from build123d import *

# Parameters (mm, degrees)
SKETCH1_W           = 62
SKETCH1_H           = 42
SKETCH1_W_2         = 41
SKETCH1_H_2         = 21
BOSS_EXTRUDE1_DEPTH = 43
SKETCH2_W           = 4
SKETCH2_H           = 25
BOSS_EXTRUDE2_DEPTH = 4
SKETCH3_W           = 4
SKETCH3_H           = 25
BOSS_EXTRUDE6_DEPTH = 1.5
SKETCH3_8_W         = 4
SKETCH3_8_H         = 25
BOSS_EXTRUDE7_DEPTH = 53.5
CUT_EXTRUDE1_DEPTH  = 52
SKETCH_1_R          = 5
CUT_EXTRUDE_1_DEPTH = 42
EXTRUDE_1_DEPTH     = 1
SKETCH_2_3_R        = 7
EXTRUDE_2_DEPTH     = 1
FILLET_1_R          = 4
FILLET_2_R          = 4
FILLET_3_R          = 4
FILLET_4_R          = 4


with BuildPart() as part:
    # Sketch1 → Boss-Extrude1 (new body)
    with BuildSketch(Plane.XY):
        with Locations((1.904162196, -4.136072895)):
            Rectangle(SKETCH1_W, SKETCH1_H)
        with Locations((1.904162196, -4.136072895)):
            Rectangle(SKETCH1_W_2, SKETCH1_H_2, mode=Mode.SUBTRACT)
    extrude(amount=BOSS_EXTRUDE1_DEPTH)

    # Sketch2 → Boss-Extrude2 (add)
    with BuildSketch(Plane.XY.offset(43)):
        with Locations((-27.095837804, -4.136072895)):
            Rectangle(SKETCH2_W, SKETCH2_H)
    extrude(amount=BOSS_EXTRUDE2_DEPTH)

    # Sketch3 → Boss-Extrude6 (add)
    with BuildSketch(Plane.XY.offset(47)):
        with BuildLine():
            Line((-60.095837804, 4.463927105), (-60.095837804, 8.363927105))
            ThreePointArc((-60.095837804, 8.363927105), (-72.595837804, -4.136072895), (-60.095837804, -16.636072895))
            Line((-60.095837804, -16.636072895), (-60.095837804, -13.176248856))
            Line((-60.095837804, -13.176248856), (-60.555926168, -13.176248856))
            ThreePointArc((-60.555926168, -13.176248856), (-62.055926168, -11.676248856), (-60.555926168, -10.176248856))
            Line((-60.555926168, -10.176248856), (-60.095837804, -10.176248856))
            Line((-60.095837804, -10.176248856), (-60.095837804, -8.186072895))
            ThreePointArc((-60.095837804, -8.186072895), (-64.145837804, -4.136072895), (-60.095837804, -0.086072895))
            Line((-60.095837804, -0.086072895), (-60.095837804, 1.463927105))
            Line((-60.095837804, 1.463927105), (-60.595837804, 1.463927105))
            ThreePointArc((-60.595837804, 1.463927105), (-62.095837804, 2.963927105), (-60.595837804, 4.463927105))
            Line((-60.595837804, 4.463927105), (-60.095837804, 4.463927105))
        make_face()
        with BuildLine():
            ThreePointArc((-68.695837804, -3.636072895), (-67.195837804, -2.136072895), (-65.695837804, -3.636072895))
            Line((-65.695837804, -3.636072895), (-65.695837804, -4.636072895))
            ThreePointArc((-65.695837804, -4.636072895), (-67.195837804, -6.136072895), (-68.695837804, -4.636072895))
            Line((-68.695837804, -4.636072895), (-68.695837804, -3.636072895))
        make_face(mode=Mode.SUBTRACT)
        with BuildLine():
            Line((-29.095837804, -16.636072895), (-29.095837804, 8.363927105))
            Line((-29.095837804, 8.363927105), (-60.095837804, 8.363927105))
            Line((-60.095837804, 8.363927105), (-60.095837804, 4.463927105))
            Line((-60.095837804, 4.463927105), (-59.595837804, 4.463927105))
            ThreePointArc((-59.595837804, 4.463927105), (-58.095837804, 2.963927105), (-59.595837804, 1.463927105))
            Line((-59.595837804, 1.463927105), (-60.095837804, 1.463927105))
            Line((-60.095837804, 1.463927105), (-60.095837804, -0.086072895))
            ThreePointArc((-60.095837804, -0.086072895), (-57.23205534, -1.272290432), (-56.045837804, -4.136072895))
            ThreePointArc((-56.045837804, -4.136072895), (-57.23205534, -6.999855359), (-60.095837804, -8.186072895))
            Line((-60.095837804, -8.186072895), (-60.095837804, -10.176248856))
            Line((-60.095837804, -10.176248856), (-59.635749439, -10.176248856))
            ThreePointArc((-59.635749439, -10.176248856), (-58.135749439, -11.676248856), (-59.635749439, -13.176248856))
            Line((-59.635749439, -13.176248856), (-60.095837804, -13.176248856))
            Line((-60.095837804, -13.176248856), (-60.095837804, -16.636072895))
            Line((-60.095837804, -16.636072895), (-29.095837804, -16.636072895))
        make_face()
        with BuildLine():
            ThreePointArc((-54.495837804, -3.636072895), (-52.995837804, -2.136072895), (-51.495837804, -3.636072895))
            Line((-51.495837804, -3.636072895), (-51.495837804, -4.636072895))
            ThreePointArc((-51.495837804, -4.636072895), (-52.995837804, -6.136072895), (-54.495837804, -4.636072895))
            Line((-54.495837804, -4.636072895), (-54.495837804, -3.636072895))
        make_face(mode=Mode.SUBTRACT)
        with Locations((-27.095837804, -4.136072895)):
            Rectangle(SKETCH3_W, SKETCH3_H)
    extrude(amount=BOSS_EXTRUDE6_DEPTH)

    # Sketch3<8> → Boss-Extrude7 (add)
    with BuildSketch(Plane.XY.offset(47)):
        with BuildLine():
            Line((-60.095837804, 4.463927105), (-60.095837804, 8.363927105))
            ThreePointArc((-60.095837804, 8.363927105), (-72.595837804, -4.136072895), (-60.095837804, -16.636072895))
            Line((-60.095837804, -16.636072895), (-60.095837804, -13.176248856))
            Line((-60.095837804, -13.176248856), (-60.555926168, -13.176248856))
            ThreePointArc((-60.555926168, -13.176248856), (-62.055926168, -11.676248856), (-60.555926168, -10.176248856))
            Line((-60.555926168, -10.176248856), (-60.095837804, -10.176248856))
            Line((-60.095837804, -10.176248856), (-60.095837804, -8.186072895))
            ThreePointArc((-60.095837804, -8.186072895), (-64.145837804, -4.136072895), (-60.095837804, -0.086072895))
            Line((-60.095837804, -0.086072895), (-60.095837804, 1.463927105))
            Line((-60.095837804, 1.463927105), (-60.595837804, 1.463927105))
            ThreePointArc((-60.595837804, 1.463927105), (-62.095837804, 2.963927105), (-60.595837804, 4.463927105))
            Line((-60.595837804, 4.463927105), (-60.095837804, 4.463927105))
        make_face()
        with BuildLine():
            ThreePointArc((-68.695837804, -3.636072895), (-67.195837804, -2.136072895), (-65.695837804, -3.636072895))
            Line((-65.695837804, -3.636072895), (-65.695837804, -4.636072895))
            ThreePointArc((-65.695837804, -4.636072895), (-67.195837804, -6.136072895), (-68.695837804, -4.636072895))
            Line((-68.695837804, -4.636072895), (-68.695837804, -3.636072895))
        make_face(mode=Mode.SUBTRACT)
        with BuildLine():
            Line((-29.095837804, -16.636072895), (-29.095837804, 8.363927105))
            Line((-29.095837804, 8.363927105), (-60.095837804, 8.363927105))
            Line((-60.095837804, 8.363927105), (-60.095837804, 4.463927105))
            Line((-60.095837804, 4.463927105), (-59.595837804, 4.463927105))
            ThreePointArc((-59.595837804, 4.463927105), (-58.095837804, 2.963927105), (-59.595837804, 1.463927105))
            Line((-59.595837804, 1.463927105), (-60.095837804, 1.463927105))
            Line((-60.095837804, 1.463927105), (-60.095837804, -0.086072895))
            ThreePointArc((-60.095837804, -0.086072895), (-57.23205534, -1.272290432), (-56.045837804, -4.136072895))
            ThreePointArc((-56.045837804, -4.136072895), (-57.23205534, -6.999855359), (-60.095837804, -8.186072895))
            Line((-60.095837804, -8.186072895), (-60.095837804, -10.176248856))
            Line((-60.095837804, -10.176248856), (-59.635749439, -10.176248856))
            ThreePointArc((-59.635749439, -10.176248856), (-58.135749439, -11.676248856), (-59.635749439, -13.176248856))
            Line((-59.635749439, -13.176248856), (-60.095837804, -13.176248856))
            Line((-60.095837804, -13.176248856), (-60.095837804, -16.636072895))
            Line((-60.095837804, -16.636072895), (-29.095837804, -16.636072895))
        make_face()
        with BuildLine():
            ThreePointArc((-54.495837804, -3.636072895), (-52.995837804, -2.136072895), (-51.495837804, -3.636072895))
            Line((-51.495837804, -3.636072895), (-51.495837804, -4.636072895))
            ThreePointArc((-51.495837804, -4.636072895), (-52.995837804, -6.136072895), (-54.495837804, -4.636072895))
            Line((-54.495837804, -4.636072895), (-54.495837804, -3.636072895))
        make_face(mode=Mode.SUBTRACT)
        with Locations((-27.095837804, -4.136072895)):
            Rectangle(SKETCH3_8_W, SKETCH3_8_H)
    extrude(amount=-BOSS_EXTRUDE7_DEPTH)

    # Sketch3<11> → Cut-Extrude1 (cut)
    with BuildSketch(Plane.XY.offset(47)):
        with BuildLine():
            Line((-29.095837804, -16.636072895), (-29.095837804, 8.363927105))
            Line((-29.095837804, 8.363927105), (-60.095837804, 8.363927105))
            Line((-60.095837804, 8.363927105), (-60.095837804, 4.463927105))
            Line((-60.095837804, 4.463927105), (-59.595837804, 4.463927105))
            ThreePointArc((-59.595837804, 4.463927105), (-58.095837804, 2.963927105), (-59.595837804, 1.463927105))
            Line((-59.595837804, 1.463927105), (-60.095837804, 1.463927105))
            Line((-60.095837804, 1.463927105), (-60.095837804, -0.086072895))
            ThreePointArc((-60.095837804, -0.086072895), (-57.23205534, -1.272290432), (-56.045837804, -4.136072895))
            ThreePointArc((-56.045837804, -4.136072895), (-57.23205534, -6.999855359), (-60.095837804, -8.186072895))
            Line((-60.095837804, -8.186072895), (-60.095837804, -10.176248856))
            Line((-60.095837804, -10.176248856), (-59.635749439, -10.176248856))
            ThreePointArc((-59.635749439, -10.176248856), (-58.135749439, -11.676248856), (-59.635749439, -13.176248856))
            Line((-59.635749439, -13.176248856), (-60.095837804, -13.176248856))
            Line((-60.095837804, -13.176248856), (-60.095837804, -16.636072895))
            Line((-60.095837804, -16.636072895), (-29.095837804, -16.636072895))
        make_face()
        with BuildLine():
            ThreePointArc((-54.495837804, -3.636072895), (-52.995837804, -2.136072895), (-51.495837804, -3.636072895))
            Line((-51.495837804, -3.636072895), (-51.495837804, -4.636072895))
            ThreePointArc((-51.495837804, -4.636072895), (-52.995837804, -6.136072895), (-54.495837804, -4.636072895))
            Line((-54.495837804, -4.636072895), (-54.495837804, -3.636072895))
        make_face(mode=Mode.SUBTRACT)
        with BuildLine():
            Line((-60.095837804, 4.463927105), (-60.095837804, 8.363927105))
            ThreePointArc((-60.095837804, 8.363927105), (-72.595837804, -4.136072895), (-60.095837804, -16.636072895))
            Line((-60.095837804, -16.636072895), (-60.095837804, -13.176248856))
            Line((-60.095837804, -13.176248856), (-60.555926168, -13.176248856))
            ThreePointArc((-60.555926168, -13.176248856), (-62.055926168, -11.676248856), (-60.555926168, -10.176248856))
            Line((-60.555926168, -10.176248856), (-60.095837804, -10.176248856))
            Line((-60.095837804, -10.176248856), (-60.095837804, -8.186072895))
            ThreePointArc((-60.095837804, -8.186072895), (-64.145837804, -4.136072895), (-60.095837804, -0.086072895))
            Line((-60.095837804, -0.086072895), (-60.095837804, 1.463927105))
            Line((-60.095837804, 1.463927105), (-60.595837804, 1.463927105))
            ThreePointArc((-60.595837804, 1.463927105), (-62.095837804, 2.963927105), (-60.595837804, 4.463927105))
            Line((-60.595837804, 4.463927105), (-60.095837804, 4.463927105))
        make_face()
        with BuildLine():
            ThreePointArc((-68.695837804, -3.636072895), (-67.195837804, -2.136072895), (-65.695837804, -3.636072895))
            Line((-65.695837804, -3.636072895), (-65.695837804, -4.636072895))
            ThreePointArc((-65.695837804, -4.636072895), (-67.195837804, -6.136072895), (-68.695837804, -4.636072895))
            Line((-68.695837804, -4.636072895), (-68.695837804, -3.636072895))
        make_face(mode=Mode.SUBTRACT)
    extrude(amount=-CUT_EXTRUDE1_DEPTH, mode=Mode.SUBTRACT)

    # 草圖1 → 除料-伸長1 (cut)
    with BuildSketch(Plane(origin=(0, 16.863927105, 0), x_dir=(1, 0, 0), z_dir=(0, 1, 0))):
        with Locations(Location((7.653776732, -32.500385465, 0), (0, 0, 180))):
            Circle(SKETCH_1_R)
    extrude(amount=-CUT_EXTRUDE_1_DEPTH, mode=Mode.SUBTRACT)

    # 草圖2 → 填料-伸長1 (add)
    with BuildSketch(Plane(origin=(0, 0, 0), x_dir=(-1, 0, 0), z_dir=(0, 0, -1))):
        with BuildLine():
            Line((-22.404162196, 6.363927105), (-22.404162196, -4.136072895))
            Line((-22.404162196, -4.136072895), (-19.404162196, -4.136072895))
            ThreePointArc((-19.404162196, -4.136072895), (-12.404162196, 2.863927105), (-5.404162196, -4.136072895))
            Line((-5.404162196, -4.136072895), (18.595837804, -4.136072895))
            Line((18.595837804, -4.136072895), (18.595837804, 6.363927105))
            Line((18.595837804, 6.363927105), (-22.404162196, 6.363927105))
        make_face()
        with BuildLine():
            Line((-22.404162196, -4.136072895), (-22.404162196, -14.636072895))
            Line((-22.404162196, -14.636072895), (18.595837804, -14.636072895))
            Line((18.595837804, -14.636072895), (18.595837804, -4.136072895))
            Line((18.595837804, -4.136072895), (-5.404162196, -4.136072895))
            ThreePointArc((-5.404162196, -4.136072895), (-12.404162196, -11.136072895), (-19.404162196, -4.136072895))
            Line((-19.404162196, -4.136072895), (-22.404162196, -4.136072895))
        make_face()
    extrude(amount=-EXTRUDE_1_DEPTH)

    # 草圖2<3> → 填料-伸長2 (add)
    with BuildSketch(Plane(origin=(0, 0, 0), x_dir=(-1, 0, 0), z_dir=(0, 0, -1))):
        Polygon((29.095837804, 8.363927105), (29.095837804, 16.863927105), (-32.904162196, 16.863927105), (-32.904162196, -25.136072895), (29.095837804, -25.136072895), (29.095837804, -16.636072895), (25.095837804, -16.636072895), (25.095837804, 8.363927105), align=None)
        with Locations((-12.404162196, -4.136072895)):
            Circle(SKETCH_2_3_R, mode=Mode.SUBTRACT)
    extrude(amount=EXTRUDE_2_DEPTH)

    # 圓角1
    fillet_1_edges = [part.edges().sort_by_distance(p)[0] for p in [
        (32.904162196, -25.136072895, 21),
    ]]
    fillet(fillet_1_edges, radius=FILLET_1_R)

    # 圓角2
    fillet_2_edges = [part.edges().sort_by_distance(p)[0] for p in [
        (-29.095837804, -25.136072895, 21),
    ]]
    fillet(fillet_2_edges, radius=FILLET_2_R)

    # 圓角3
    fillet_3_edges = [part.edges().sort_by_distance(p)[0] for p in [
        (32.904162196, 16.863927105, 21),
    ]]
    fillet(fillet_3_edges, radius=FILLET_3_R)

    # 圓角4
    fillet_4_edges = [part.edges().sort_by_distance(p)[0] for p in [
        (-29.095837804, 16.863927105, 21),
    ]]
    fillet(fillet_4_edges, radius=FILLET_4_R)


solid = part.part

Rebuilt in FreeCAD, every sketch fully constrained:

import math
import FreeCAD as App
import Part
import Sketcher

V = App.Vector
Q = App.Units.Quantity


def edges_at(feature, points):
    """Names of the edges that pass closest to the given points."""
    edges = feature.Shape.Edges
    near = lambda p: min(range(len(edges)), key=lambda i: edges[i].distToShape(Part.Vertex(*p))[0])
    return sorted({f"Edge{near(p) + 1}" for p in points})

doc = App.newDocument("Part")
body = doc.addObject("PartDesign::Body", "Body")

sketch1 = doc.addObject("Sketcher::SketchObject", "Sketch")
body.addObject(sketch1)
sketch1.AttachmentSupport = (doc.XY_Plane, [""])
sketch1.MapMode = "FlatFace"
sketch1.addGeometry([
    Part.LineSegment(V(-29, 17, 0), V(-29, -25, 0)),
    Part.LineSegment(V(-29, -25, 0), V(33, -25, 0)),
    Part.LineSegment(V(33, -25, 0), V(33, 17, 0)),
    Part.LineSegment(V(33, 17, 0), V(-29, 17, 0)),
    Part.LineSegment(V(22, -15, 0), V(-19, -15, 0)),
    Part.LineSegment(V(-19, -15, 0), V(-19, 6, 0)),
    Part.LineSegment(V(-19, 6, 0), V(22, 6, 0)),
    Part.LineSegment(V(22, 6, 0), V(22, -15, 0)),
], False)
sketch1.addConstraint([
    Sketcher.Constraint("Coincident", 0, 2, 1, 1),
    Sketcher.Constraint("Coincident", 1, 2, 2, 1),
    Sketcher.Constraint("Coincident", 2, 2, 3, 1),
    Sketcher.Constraint("Coincident", 3, 2, 0, 1),
    Sketcher.Constraint("Coincident", 4, 2, 5, 1),
    Sketcher.Constraint("Coincident", 5, 2, 6, 1),
    Sketcher.Constraint("Coincident", 6, 2, 7, 1),
    Sketcher.Constraint("Coincident", 7, 2, 4, 1),
    Sketcher.Constraint("Vertical", 0),
    Sketcher.Constraint("Horizontal", 1),
    Sketcher.Constraint("Vertical", 2),
    Sketcher.Constraint("Horizontal", 3),
    Sketcher.Constraint("Horizontal", 4),
    Sketcher.Constraint("Vertical", 5),
    Sketcher.Constraint("Horizontal", 6),
    Sketcher.Constraint("Vertical", 7),
    Sketcher.Constraint("DistanceX", 1, 1, 1, 2, Q("62 mm")),
    Sketcher.Constraint("DistanceX", 4, 2, 4, 1, Q("41 mm")),
    Sketcher.Constraint("DistanceY", 0, 2, 0, 1, Q("42 mm")),
    Sketcher.Constraint("DistanceY", 5, 1, 5, 2, Q("21 mm")),
    Sketcher.Constraint("DistanceX", 0, 2, 4, 2, Q("10.5 mm")),
    Sketcher.Constraint("DistanceY", 0, 2, 4, 2, Q("10.5 mm")),
    Sketcher.Constraint("DistanceX", 0, 2, -1, 1, Q("29.095838 mm")),
    Sketcher.Constraint("DistanceY", 0, 2, -1, 1, Q("25.136073 mm")),
])
pad1 = doc.addObject("PartDesign::Pad", "Pad")
body.addObject(pad1)
pad1.Profile = sketch1
pad1.Length = 43

sketch2 = doc.addObject("Sketcher::SketchObject", "Sketch001")
body.addObject(sketch2)
sketch2.AttachmentSupport = (doc.XY_Plane, [""])
sketch2.MapMode = "FlatFace"
sketch2.AttachmentOffset = App.Placement(V(0, 0, 43), App.Rotation())
sketch2.addGeometry([
    Part.LineSegment(V(-29.1, 8.4, 0), V(-29.1, -16.6, 0)),
    Part.LineSegment(V(-29.1, -16.6, 0), V(-25.1, -16.6, 0)),
    Part.LineSegment(V(-25.1, -16.6, 0), V(-25.1, 8.4, 0)),
    Part.LineSegment(V(-25.1, 8.4, 0), V(-29.1, 8.4, 0)),
], False)
sketch2.addConstraint([
    Sketcher.Constraint("Coincident", 0, 2, 1, 1),
    Sketcher.Constraint("Coincident", 1, 2, 2, 1),
    Sketcher.Constraint("Coincident", 2, 2, 3, 1),
    Sketcher.Constraint("Coincident", 3, 2, 0, 1),
    Sketcher.Constraint("Vertical", 0),
    Sketcher.Constraint("Horizontal", 1),
    Sketcher.Constraint("Vertical", 2),
    Sketcher.Constraint("Horizontal", 3),
    Sketcher.Constraint("DistanceX", 1, 1, 1, 2, Q("4 mm")),
    Sketcher.Constraint("DistanceY", 0, 2, 0, 1, Q("25 mm")),
    Sketcher.Constraint("DistanceX", 0, 2, -1, 1, Q("29.095838 mm")),
    Sketcher.Constraint("DistanceY", 0, 2, -1, 1, Q("16.636073 mm")),
])
pad2 = doc.addObject("PartDesign::Pad", "Pad001")
body.addObject(pad2)
pad2.Profile = sketch2
pad2.Length = 4

sketch3 = doc.addObject("Sketcher::SketchObject", "Sketch002")
body.addObject(sketch3)
sketch3.AttachmentSupport = (doc.XY_Plane, [""])
sketch3.MapMode = "FlatFace"
sketch3.AttachmentOffset = App.Placement(V(0, 0, 47), App.Rotation())
sketch3.addGeometry([
    Part.ArcOfCircle(Part.Circle(V(-60.1, -4.1, 0), V(0, 0, 1), 12.5), math.radians(90), math.radians(270)),
    Part.LineSegment(V(-60.1, -16.6, 0), V(-25.1, -16.6, 0)),
    Part.LineSegment(V(-25.1, -16.6, 0), V(-25.1, 8.4, 0)),
    Part.LineSegment(V(-25.1, 8.4, 0), V(-60.1, 8.4, 0)),
    Part.ArcOfCircle(Part.Circle(V(-60.6, -11.7, 0), V(0, 0, 1), 1.5), math.radians(90), math.radians(270)),
    Part.LineSegment(V(-60.6, -10.2, 0), V(-59.6, -10.2, 0)),
    Part.ArcOfCircle(Part.Circle(V(-59.6, -11.7, 0), V(0, 0, 1), 1.5), math.radians(-90), math.radians(90)),
    Part.LineSegment(V(-59.6, -13.2, 0), V(-60.6, -13.2, 0)),
    Part.LineSegment(V(-68.7, -4.6, 0), V(-68.7, -3.6, 0)),
    Part.ArcOfCircle(Part.Circle(V(-67.2, -3.6, 0), V(0, 0, 1), 1.5), math.radians(0), math.radians(180)),
    Part.LineSegment(V(-65.7, -3.6, 0), V(-65.7, -4.6, 0)),
    Part.ArcOfCircle(Part.Circle(V(-67.2, -4.6, 0), V(0, 0, 1), 1.5), math.radians(180), math.radians(360)),
    Part.ArcOfCircle(Part.Circle(V(-60.1, -4.1, 0), V(0, 0, 1), 4), math.radians(90), math.radians(270)),
    Part.ArcOfCircle(Part.Circle(V(-60.1, -4.1, 0), V(0, 0, 1), 4.1), math.radians(0), math.radians(90)),
    Part.ArcOfCircle(Part.Circle(V(-60.1, -4.1, 0), V(0, 0, 1), 4), math.radians(-90), math.radians(0)),
    Part.LineSegment(V(-54.5, -4.6, 0), V(-54.5, -3.6, 0)),
    Part.ArcOfCircle(Part.Circle(V(-53, -3.6, 0), V(0, 0, 1), 1.5), math.radians(0), math.radians(180)),
    Part.LineSegment(V(-51.5, -3.6, 0), V(-51.5, -4.6, 0)),
    Part.ArcOfCircle(Part.Circle(V(-53, -4.6, 0), V(0, 0, 1), 1.5), math.radians(180), math.radians(360)),
    Part.LineSegment(V(-60.6, 4.5, 0), V(-59.6, 4.5, 0)),
    Part.ArcOfCircle(Part.Circle(V(-59.6, 3, 0), V(0, 0, 1), 1.5), math.radians(-90), math.radians(90)),
    Part.LineSegment(V(-59.6, 1.5, 0), V(-60.6, 1.5, 0)),
    Part.ArcOfCircle(Part.Circle(V(-60.6, 3, 0), V(0, 0, 1), 1.5), math.radians(90), math.radians(270)),
], False)
sketch3.addConstraint([
    Sketcher.Constraint("Tangent", 0, 2, 1, 1),
    Sketcher.Constraint("Coincident", 1, 2, 2, 1),
    Sketcher.Constraint("Coincident", 2, 2, 3, 1),
    Sketcher.Constraint("Tangent", 3, 2, 0, 1),
    Sketcher.Constraint("Tangent", 4, 1, 5, 1),
    Sketcher.Constraint("Tangent", 5, 2, 6, 2),
    Sketcher.Constraint("Tangent", 6, 1, 7, 1),
    Sketcher.Constraint("Tangent", 7, 2, 4, 2),
    Sketcher.Constraint("Tangent", 8, 2, 9, 2),
    Sketcher.Constraint("Tangent", 9, 1, 10, 1),
    Sketcher.Constraint("Tangent", 10, 2, 11, 2),
    Sketcher.Constraint("Tangent", 11, 1, 8, 1),
    Sketcher.Constraint("Tangent", 12, 1, 13, 2),
    Sketcher.Constraint("Tangent", 13, 1, 14, 2),
    Sketcher.Constraint("Tangent", 14, 1, 12, 2),
    Sketcher.Constraint("Tangent", 15, 2, 16, 2),
    Sketcher.Constraint("Tangent", 16, 1, 17, 1),
    Sketcher.Constraint("Tangent", 17, 2, 18, 2),
    Sketcher.Constraint("Tangent", 18, 1, 15, 1),
    Sketcher.Constraint("Tangent", 19, 2, 20, 2),
    Sketcher.Constraint("Tangent", 20, 1, 21, 1),
    Sketcher.Constraint("Tangent", 21, 2, 22, 2),
    Sketcher.Constraint("Tangent", 22, 1, 19, 1),
    Sketcher.Constraint("Horizontal", 1),
    Sketcher.Constraint("Vertical", 2),
    Sketcher.Constraint("Horizontal", 3),
    Sketcher.Constraint("Horizontal", 5),
    Sketcher.Constraint("Horizontal", 7),
    Sketcher.Constraint("Vertical", 8),
    Sketcher.Constraint("Vertical", 10),
    Sketcher.Constraint("Vertical", 15),
    Sketcher.Constraint("Vertical", 17),
    Sketcher.Constraint("Horizontal", 19),
    Sketcher.Constraint("Horizontal", 21),
    Sketcher.Constraint("Coincident", 12, 3, 0, 3),
    Sketcher.Constraint("Equal", 6, 9),
    Sketcher.Constraint("Equal", 11, 16),
    Sketcher.Constraint("Equal", 18, 20),
    Sketcher.Constraint("Horizontal", 9, 3, 16, 3),
    Sketcher.Constraint("Horizontal", 11, 3, 18, 3),
    Sketcher.Constraint("Horizontal", 14, 3, 13, 1),
    Sketcher.Constraint("Vertical", 3, 2, 12, 1),
    Sketcher.Constraint("Vertical", 12, 1, 14, 1),
    Sketcher.Constraint("Equal", 21, 8),
    Sketcher.Constraint("Radius", 0, Q("12.5 mm")),
    Sketcher.Constraint("Radius", 4, Q("1.5 mm")),
    Sketcher.Constraint("DistanceX", 1, 1, 1, 2, Q("35 mm")),
    Sketcher.Constraint("DistanceX", 19, 1, 19, 2, Q("1 mm")),
    Sketcher.Constraint("Radius", 12, Q("4.05 mm")),
    Sketcher.Constraint("DistanceY", 1, 2, 18, 3, Q("12 mm")),
    Sketcher.Constraint("DistanceX", 9, 3, 0, 3, Q("7.1 mm")),
    Sketcher.Constraint("DistanceX", 14, 3, 16, 3, Q("7.1 mm")),
    Sketcher.Constraint("DistanceX", 0, 3, 20, 3, Q("0.5 mm")),
    Sketcher.Constraint("DistanceY", 0, 3, 20, 3, Q("7.1 mm")),
    Sketcher.Constraint("DistanceX", 5, 1, 5, 2, Q("0.920177 mm")),
    Sketcher.Constraint("DistanceY", 4, 3, -1, 1, Q("11.676249 mm")),
    Sketcher.Constraint("DistanceX", 6, 3, -1, 1, Q("59.635749 mm")),
    Sketcher.Constraint("DistanceX", 4, 3, 0, 3, Q("0.460088 mm")),
    Sketcher.Constraint("DistanceY", 0, 3, -1, 1, Q("4.136073 mm")),
])
pad3 = doc.addObject("PartDesign::Pad", "Pad002")
body.addObject(pad3)
pad3.Profile = sketch3
pad3.Length = 1.5

sketch4 = doc.addObject("Sketcher::SketchObject", "Sketch003")
body.addObject(sketch4)
sketch4.AttachmentSupport = (doc.XY_Plane, [""])
sketch4.MapMode = "FlatFace"
sketch4.AttachmentOffset = App.Placement(V(0, 0, 47), App.Rotation())
sketch4.addGeometry([
    Part.ArcOfCircle(Part.Circle(V(-60.1, -4.1, 0), V(0, 0, 1), 12.5), math.radians(90), math.radians(270)),
    Part.LineSegment(V(-60.1, -16.6, 0), V(-25.1, -16.6, 0)),
    Part.LineSegment(V(-25.1, -16.6, 0), V(-25.1, 8.4, 0)),
    Part.LineSegment(V(-25.1, 8.4, 0), V(-60.1, 8.4, 0)),
    Part.ArcOfCircle(Part.Circle(V(-60.6, -11.7, 0), V(0, 0, 1), 1.5), math.radians(90), math.radians(270)),
    Part.LineSegment(V(-60.6, -10.2, 0), V(-59.6, -10.2, 0)),
    Part.ArcOfCircle(Part.Circle(V(-59.6, -11.7, 0), V(0, 0, 1), 1.5), math.radians(-90), math.radians(90)),
    Part.LineSegment(V(-59.6, -13.2, 0), V(-60.6, -13.2, 0)),
    Part.LineSegment(V(-68.7, -4.6, 0), V(-68.7, -3.6, 0)),
    Part.ArcOfCircle(Part.Circle(V(-67.2, -3.6, 0), V(0, 0, 1), 1.5), math.radians(0), math.radians(180)),
    Part.LineSegment(V(-65.7, -3.6, 0), V(-65.7, -4.6, 0)),
    Part.ArcOfCircle(Part.Circle(V(-67.2, -4.6, 0), V(0, 0, 1), 1.5), math.radians(180), math.radians(360)),
    Part.ArcOfCircle(Part.Circle(V(-60.1, -4.1, 0), V(0, 0, 1), 4), math.radians(90), math.radians(270)),
    Part.ArcOfCircle(Part.Circle(V(-60.1, -4.1, 0), V(0, 0, 1), 4.1), math.radians(0), math.radians(90)),
    Part.ArcOfCircle(Part.Circle(V(-60.1, -4.1, 0), V(0, 0, 1), 4), math.radians(-90), math.radians(0)),
    Part.LineSegment(V(-54.5, -4.6, 0), V(-54.5, -3.6, 0)),
    Part.ArcOfCircle(Part.Circle(V(-53, -3.6, 0), V(0, 0, 1), 1.5), math.radians(0), math.radians(180)),
    Part.LineSegment(V(-51.5, -3.6, 0), V(-51.5, -4.6, 0)),
    Part.ArcOfCircle(Part.Circle(V(-53, -4.6, 0), V(0, 0, 1), 1.5), math.radians(180), math.radians(360)),
    Part.LineSegment(V(-60.6, 4.5, 0), V(-59.6, 4.5, 0)),
    Part.ArcOfCircle(Part.Circle(V(-59.6, 3, 0), V(0, 0, 1), 1.5), math.radians(-90), math.radians(90)),
    Part.LineSegment(V(-59.6, 1.5, 0), V(-60.6, 1.5, 0)),
    Part.ArcOfCircle(Part.Circle(V(-60.6, 3, 0), V(0, 0, 1), 1.5), math.radians(90), math.radians(270)),
], False)
sketch4.addConstraint([
    Sketcher.Constraint("Tangent", 0, 2, 1, 1),
    Sketcher.Constraint("Coincident", 1, 2, 2, 1),
    Sketcher.Constraint("Coincident", 2, 2, 3, 1),
    Sketcher.Constraint("Tangent", 3, 2, 0, 1),
    Sketcher.Constraint("Tangent", 4, 1, 5, 1),
    Sketcher.Constraint("Tangent", 5, 2, 6, 2),
    Sketcher.Constraint("Tangent", 6, 1, 7, 1),
    Sketcher.Constraint("Tangent", 7, 2, 4, 2),
    Sketcher.Constraint("Tangent", 8, 2, 9, 2),
    Sketcher.Constraint("Tangent", 9, 1, 10, 1),
    Sketcher.Constraint("Tangent", 10, 2, 11, 2),
    Sketcher.Constraint("Tangent", 11, 1, 8, 1),
    Sketcher.Constraint("Tangent", 12, 1, 13, 2),
    Sketcher.Constraint("Tangent", 13, 1, 14, 2),
    Sketcher.Constraint("Tangent", 14, 1, 12, 2),
    Sketcher.Constraint("Tangent", 15, 2, 16, 2),
    Sketcher.Constraint("Tangent", 16, 1, 17, 1),
    Sketcher.Constraint("Tangent", 17, 2, 18, 2),
    Sketcher.Constraint("Tangent", 18, 1, 15, 1),
    Sketcher.Constraint("Tangent", 19, 2, 20, 2),
    Sketcher.Constraint("Tangent", 20, 1, 21, 1),
    Sketcher.Constraint("Tangent", 21, 2, 22, 2),
    Sketcher.Constraint("Tangent", 22, 1, 19, 1),
    Sketcher.Constraint("Horizontal", 1),
    Sketcher.Constraint("Vertical", 2),
    Sketcher.Constraint("Horizontal", 3),
    Sketcher.Constraint("Horizontal", 5),
    Sketcher.Constraint("Horizontal", 7),
    Sketcher.Constraint("Vertical", 8),
    Sketcher.Constraint("Vertical", 10),
    Sketcher.Constraint("Vertical", 15),
    Sketcher.Constraint("Vertical", 17),
    Sketcher.Constraint("Horizontal", 19),
    Sketcher.Constraint("Horizontal", 21),
    Sketcher.Constraint("Coincident", 12, 3, 0, 3),
    Sketcher.Constraint("Equal", 6, 9),
    Sketcher.Constraint("Equal", 11, 16),
    Sketcher.Constraint("Equal", 18, 20),
    Sketcher.Constraint("Horizontal", 9, 3, 16, 3),
    Sketcher.Constraint("Horizontal", 11, 3, 18, 3),
    Sketcher.Constraint("Horizontal", 14, 3, 13, 1),
    Sketcher.Constraint("Vertical", 3, 2, 12, 1),
    Sketcher.Constraint("Vertical", 12, 1, 14, 1),
    Sketcher.Constraint("Equal", 21, 8),
    Sketcher.Constraint("Radius", 0, Q("12.5 mm")),
    Sketcher.Constraint("Radius", 4, Q("1.5 mm")),
    Sketcher.Constraint("DistanceX", 1, 1, 1, 2, Q("35 mm")),
    Sketcher.Constraint("DistanceX", 19, 1, 19, 2, Q("1 mm")),
    Sketcher.Constraint("Radius", 12, Q("4.05 mm")),
    Sketcher.Constraint("DistanceY", 1, 2, 18, 3, Q("12 mm")),
    Sketcher.Constraint("DistanceX", 9, 3, 0, 3, Q("7.1 mm")),
    Sketcher.Constraint("DistanceX", 14, 3, 16, 3, Q("7.1 mm")),
    Sketcher.Constraint("DistanceX", 0, 3, 20, 3, Q("0.5 mm")),
    Sketcher.Constraint("DistanceY", 0, 3, 20, 3, Q("7.1 mm")),
    Sketcher.Constraint("DistanceX", 5, 1, 5, 2, Q("0.920177 mm")),
    Sketcher.Constraint("DistanceY", 4, 3, -1, 1, Q("11.676249 mm")),
    Sketcher.Constraint("DistanceX", 6, 3, -1, 1, Q("59.635749 mm")),
    Sketcher.Constraint("DistanceX", 4, 3, 0, 3, Q("0.460088 mm")),
    Sketcher.Constraint("DistanceY", 0, 3, -1, 1, Q("4.136073 mm")),
])
pad4 = doc.addObject("PartDesign::Pad", "Pad003")
body.addObject(pad4)
pad4.Profile = sketch4
pad4.Length = 53.5
pad4.Reversed = True

sketch5 = doc.addObject("Sketcher::SketchObject", "Sketch004")
body.addObject(sketch5)
sketch5.AttachmentSupport = (doc.XY_Plane, [""])
sketch5.MapMode = "FlatFace"
sketch5.AttachmentOffset = App.Placement(V(0, 0, 47), App.Rotation())
sketch5.addGeometry([
    Part.LineSegment(V(-29.1, -16.6, 0), V(-29.1, 8.4, 0)),
    Part.LineSegment(V(-29.1, 8.4, 0), V(-60.1, 8.4, 0)),
    Part.ArcOfCircle(Part.Circle(V(-60.1, -4.1, 0), V(0, 0, 1), 12.5), math.radians(90), math.radians(270)),
    Part.LineSegment(V(-60.1, -16.6, 0), V(-29.1, -16.6, 0)),
    Part.LineSegment(V(-59.6, -13.2, 0), V(-60.6, -13.2, 0)),
    Part.ArcOfCircle(Part.Circle(V(-60.6, -11.7, 0), V(0, 0, 1), 1.5), math.radians(90), math.radians(270)),
    Part.LineSegment(V(-60.6, -10.2, 0), V(-59.6, -10.2, 0)),
    Part.ArcOfCircle(Part.Circle(V(-59.6, -11.7, 0), V(0, 0, 1), 1.5), math.radians(-90), math.radians(90)),
    Part.LineSegment(V(-68.7, -4.6, 0), V(-68.7, -3.6, 0)),
    Part.ArcOfCircle(Part.Circle(V(-67.2, -3.6, 0), V(0, 0, 1), 1.5), math.radians(0), math.radians(180)),
    Part.LineSegment(V(-65.7, -3.6, 0), V(-65.7, -4.6, 0)),
    Part.ArcOfCircle(Part.Circle(V(-67.2, -4.6, 0), V(0, 0, 1), 1.5), math.radians(180), math.radians(360)),
    Part.ArcOfCircle(Part.Circle(V(-60.1, -4.1, 0), V(0, 0, 1), 4), math.radians(-90), math.radians(0)),
    Part.ArcOfCircle(Part.Circle(V(-60.1, -4.1, 0), V(0, 0, 1), 4), math.radians(90), math.radians(270)),
    Part.ArcOfCircle(Part.Circle(V(-60.1, -4.1, 0), V(0, 0, 1), 4.1), math.radians(0), math.radians(90)),
    Part.LineSegment(V(-54.5, -4.6, 0), V(-54.5, -3.6, 0)),
    Part.ArcOfCircle(Part.Circle(V(-53, -3.6, 0), V(0, 0, 1), 1.5), math.radians(0), math.radians(180)),
    Part.LineSegment(V(-51.5, -3.6, 0), V(-51.5, -4.6, 0)),
    Part.ArcOfCircle(Part.Circle(V(-53, -4.6, 0), V(0, 0, 1), 1.5), math.radians(180), math.radians(360)),
    Part.ArcOfCircle(Part.Circle(V(-59.6, 3, 0), V(0, 0, 1), 1.5), math.radians(-90), math.radians(90)),
    Part.LineSegment(V(-59.6, 1.5, 0), V(-60.6, 1.5, 0)),
    Part.ArcOfCircle(Part.Circle(V(-60.6, 3, 0), V(0, 0, 1), 1.5), math.radians(90), math.radians(270)),
    Part.LineSegment(V(-60.6, 4.5, 0), V(-59.6, 4.5, 0)),
], False)
sketch5.addConstraint([
    Sketcher.Constraint("Coincident", 0, 2, 1, 1),
    Sketcher.Constraint("Tangent", 1, 2, 2, 1),
    Sketcher.Constraint("Tangent", 2, 2, 3, 1),
    Sketcher.Constraint("Coincident", 3, 2, 0, 1),
    Sketcher.Constraint("Tangent", 4, 2, 5, 2),
    Sketcher.Constraint("Tangent", 5, 1, 6, 1),
    Sketcher.Constraint("Tangent", 6, 2, 7, 2),
    Sketcher.Constraint("Tangent", 7, 1, 4, 1),
    Sketcher.Constraint("Tangent", 8, 2, 9, 2),
    Sketcher.Constraint("Tangent", 9, 1, 10, 1),
    Sketcher.Constraint("Tangent", 10, 2, 11, 2),
    Sketcher.Constraint("Tangent", 11, 1, 8, 1),
    Sketcher.Constraint("Tangent", 12, 1, 13, 2),
    Sketcher.Constraint("Tangent", 13, 1, 14, 2),
    Sketcher.Constraint("Tangent", 14, 1, 12, 2),
    Sketcher.Constraint("Tangent", 15, 2, 16, 2),
    Sketcher.Constraint("Tangent", 16, 1, 17, 1),
    Sketcher.Constraint("Tangent", 17, 2, 18, 2),
    Sketcher.Constraint("Tangent", 18, 1, 15, 1),
    Sketcher.Constraint("Tangent", 19, 1, 20, 1),
    Sketcher.Constraint("Tangent", 20, 2, 21, 2),
    Sketcher.Constraint("Tangent", 21, 1, 22, 1),
    Sketcher.Constraint("Tangent", 22, 2, 19, 2),
    Sketcher.Constraint("Vertical", 0),
    Sketcher.Constraint("Horizontal", 1),
    Sketcher.Constraint("Horizontal", 3),
    Sketcher.Constraint("Horizontal", 4),
    Sketcher.Constraint("Horizontal", 6),
    Sketcher.Constraint("Vertical", 8),
    Sketcher.Constraint("Vertical", 10),
    Sketcher.Constraint("Vertical", 15),
    Sketcher.Constraint("Vertical", 17),
    Sketcher.Constraint("Horizontal", 20),
    Sketcher.Constraint("Horizontal", 22),
    Sketcher.Constraint("Coincident", 12, 3, 2, 3),
    Sketcher.Constraint("Equal", 7, 9),
    Sketcher.Constraint("Equal", 11, 16),
    Sketcher.Constraint("Equal", 18, 19),
    Sketcher.Constraint("Horizontal", 9, 3, 16, 3),
    Sketcher.Constraint("Horizontal", 11, 3, 18, 3),
    Sketcher.Constraint("Horizontal", 13, 3, 14, 1),
    Sketcher.Constraint("Vertical", 2, 2, 12, 1),
    Sketcher.Constraint("Vertical", 12, 1, 13, 1),
    Sketcher.Constraint("Equal", 22, 8),
    Sketcher.Constraint("Radius", 2, Q("12.5 mm")),
    Sketcher.Constraint("Radius", 5, Q("1.5 mm")),
    Sketcher.Constraint("DistanceX", 1, 2, 1, 1, Q("31 mm")),
    Sketcher.Constraint("DistanceX", 20, 2, 20, 1, Q("1 mm")),
    Sketcher.Constraint("Radius", 12, Q("4.05 mm")),
    Sketcher.Constraint("DistanceY", 16, 3, 0, 2, Q("12 mm")),
    Sketcher.Constraint("DistanceX", 9, 3, 2, 3, Q("7.1 mm")),
    Sketcher.Constraint("DistanceX", 12, 3, 16, 3, Q("7.1 mm")),
    Sketcher.Constraint("DistanceX", 2, 3, 19, 3, Q("0.5 mm")),
    Sketcher.Constraint("DistanceY", 2, 3, 19, 3, Q("7.1 mm")),
    Sketcher.Constraint("DistanceX", 4, 2, 4, 1, Q("0.920177 mm")),
    Sketcher.Constraint("DistanceY", 5, 3, -1, 1, Q("11.676249 mm")),
    Sketcher.Constraint("DistanceX", 7, 3, -1, 1, Q("59.635749 mm")),
    Sketcher.Constraint("DistanceX", 5, 3, 2, 3, Q("0.460088 mm")),
    Sketcher.Constraint("DistanceY", 2, 3, -1, 1, Q("4.136073 mm")),
])
pocket1 = doc.addObject("PartDesign::Pocket", "Pocket")
body.addObject(pocket1)
pocket1.Profile = sketch5
pocket1.Length = 52

sketch6 = doc.addObject("Sketcher::SketchObject", "Sketch005")
body.addObject(sketch6)
sketch6.AttachmentSupport = (doc.XZ_Plane, [""])
sketch6.MapMode = "FlatFace"
sketch6.AttachmentOffset = App.Placement(V(0, 0, -16.863927), App.Rotation())
sketch6.addGeometry(Part.Circle(V(8, 33, 0), V(0, 0, 1), 5), False)
sketch6.addConstraint([
    Sketcher.Constraint("Diameter", 0, Q("10 mm")),
    Sketcher.Constraint("DistanceX", -1, 1, 0, 3, Q("7.653777 mm")),
    Sketcher.Constraint("DistanceY", -1, 1, 0, 3, Q("32.500385 mm")),
])
pocket2 = doc.addObject("PartDesign::Pocket", "Pocket001")
body.addObject(pocket2)
pocket2.Profile = sketch6
pocket2.Length = 42
pocket2.Reversed = True

sketch7 = doc.addObject("Sketcher::SketchObject", "Sketch006")
body.addObject(sketch7)
sketch7.AttachmentSupport = (doc.XY_Plane, [""])
sketch7.MapMode = "FlatFace"
sketch7.addGeometry([
    Part.LineSegment(V(22, 6, 0), V(22, -15, 0)),
    Part.LineSegment(V(22, -15, 0), V(-19, -15, 0)),
    Part.LineSegment(V(-19, -15, 0), V(-19, 6, 0)),
    Part.LineSegment(V(-19, 6, 0), V(22, 6, 0)),
    Part.Circle(V(12, -4, 0), V(0, 0, 1), 7),
], False)
sketch7.addConstraint([
    Sketcher.Constraint("Coincident", 0, 2, 1, 1),
    Sketcher.Constraint("Coincident", 1, 2, 2, 1),
    Sketcher.Constraint("Coincident", 2, 2, 3, 1),
    Sketcher.Constraint("Coincident", 3, 2, 0, 1),
    Sketcher.Constraint("Vertical", 0),
    Sketcher.Constraint("Horizontal", 1),
    Sketcher.Constraint("Vertical", 2),
    Sketcher.Constraint("Horizontal", 3),
    Sketcher.Constraint("Diameter", 4, Q("14 mm")),
    Sketcher.Constraint("DistanceX", 1, 2, 1, 1, Q("41 mm")),
    Sketcher.Constraint("DistanceY", 0, 2, 0, 1, Q("21 mm")),
    Sketcher.Constraint("DistanceX", 4, 3, 0, 2, Q("10 mm")),
    Sketcher.Constraint("DistanceY", 0, 2, 4, 3, Q("10.5 mm")),
    Sketcher.Constraint("DistanceX", -1, 1, 4, 3, Q("12.404162 mm")),
    Sketcher.Constraint("DistanceY", 4, 3, -1, 1, Q("4.136073 mm")),
])
pad5 = doc.addObject("PartDesign::Pad", "Pad004")
body.addObject(pad5)
pad5.Profile = sketch7
pad5.Length = 1

sketch8 = doc.addObject("Sketcher::SketchObject", "Sketch007")
body.addObject(sketch8)
sketch8.AttachmentSupport = (doc.XY_Plane, [""])
sketch8.MapMode = "FlatFace"
sketch8.addGeometry([
    Part.LineSegment(V(-29.1, 8.4, 0), V(-29.1, 16.9, 0)),
    Part.LineSegment(V(-29.1, 16.9, 0), V(32.9, 16.9, 0)),
    Part.LineSegment(V(32.9, 16.9, 0), V(32.9, -25.1, 0)),
    Part.LineSegment(V(32.9, -25.1, 0), V(-29.1, -25.1, 0)),
    Part.LineSegment(V(-29.1, -25.1, 0), V(-29.1, -16.6, 0)),
    Part.LineSegment(V(-29.1, -16.6, 0), V(-25.1, -16.6, 0)),
    Part.LineSegment(V(-25.1, -16.6, 0), V(-25.1, 8.4, 0)),
    Part.LineSegment(V(-25.1, 8.4, 0), V(-29.1, 8.4, 0)),
    Part.Circle(V(12.4, -4.1, 0), V(0, 0, 1), 7),
], False)
sketch8.addConstraint([
    Sketcher.Constraint("Coincident", 0, 2, 1, 1),
    Sketcher.Constraint("Coincident", 1, 2, 2, 1),
    Sketcher.Constraint("Coincident", 2, 2, 3, 1),
    Sketcher.Constraint("Coincident", 3, 2, 4, 1),
    Sketcher.Constraint("Coincident", 4, 2, 5, 1),
    Sketcher.Constraint("Coincident", 5, 2, 6, 1),
    Sketcher.Constraint("Coincident", 6, 2, 7, 1),
    Sketcher.Constraint("Coincident", 7, 2, 0, 1),
    Sketcher.Constraint("Vertical", 0),
    Sketcher.Constraint("Horizontal", 1),
    Sketcher.Constraint("Vertical", 2),
    Sketcher.Constraint("Horizontal", 3),
    Sketcher.Constraint("Vertical", 4),
    Sketcher.Constraint("Horizontal", 5),
    Sketcher.Constraint("Vertical", 6),
    Sketcher.Constraint("Horizontal", 7),
    Sketcher.Constraint("Vertical", 0, 2, 3, 2),
    Sketcher.Constraint("Equal", 0, 4),
    Sketcher.Constraint("Diameter", 8, Q("14 mm")),
    Sketcher.Constraint("DistanceX", 1, 1, 1, 2, Q("62 mm")),
    Sketcher.Constraint("DistanceX", 5, 1, 5, 2, Q("4 mm")),
    Sketcher.Constraint("DistanceY", 2, 2, 2, 1, Q("42 mm")),
    Sketcher.Constraint("DistanceY", 6, 1, 6, 2, Q("25 mm")),
    Sketcher.Constraint("DistanceY", 8, 3, 0, 2, Q("21 mm")),
    Sketcher.Constraint("DistanceX", 0, 2, 8, 3, Q("41.5 mm")),
    Sketcher.Constraint("DistanceX", -1, 1, 8, 3, Q("12.404162 mm")),
    Sketcher.Constraint("DistanceY", 8, 3, -1, 1, Q("4.136073 mm")),
])
pad6 = doc.addObject("PartDesign::Pad", "Pad005")
body.addObject(pad6)
pad6.Profile = sketch8
pad6.Length = 1
pad6.Reversed = True
doc.recompute()

fillet = doc.addObject("PartDesign::Fillet", "Fillet")
body.addObject(fillet)
fillet.Base = (pad6, edges_at(pad6, [(32.904, -25.136, 21)]))
fillet.Radius = 4
doc.recompute()

fillet2 = doc.addObject("PartDesign::Fillet", "Fillet001")
body.addObject(fillet2)
fillet2.Base = (fillet, edges_at(fillet, [(-29.096, -25.136, 21)]))
fillet2.Radius = 4
doc.recompute()

fillet3 = doc.addObject("PartDesign::Fillet", "Fillet002")
body.addObject(fillet3)
fillet3.Base = (fillet2, edges_at(fillet2, [(32.904, 16.864, 21)]))
fillet3.Radius = 4
doc.recompute()

fillet4 = doc.addObject("PartDesign::Fillet", "Fillet003")
body.addObject(fillet4)
fillet4.Base = (fillet3, edges_at(fillet3, [(-29.096, 16.864, 21)]))
fillet4.Radius = 4

doc.recompute()
